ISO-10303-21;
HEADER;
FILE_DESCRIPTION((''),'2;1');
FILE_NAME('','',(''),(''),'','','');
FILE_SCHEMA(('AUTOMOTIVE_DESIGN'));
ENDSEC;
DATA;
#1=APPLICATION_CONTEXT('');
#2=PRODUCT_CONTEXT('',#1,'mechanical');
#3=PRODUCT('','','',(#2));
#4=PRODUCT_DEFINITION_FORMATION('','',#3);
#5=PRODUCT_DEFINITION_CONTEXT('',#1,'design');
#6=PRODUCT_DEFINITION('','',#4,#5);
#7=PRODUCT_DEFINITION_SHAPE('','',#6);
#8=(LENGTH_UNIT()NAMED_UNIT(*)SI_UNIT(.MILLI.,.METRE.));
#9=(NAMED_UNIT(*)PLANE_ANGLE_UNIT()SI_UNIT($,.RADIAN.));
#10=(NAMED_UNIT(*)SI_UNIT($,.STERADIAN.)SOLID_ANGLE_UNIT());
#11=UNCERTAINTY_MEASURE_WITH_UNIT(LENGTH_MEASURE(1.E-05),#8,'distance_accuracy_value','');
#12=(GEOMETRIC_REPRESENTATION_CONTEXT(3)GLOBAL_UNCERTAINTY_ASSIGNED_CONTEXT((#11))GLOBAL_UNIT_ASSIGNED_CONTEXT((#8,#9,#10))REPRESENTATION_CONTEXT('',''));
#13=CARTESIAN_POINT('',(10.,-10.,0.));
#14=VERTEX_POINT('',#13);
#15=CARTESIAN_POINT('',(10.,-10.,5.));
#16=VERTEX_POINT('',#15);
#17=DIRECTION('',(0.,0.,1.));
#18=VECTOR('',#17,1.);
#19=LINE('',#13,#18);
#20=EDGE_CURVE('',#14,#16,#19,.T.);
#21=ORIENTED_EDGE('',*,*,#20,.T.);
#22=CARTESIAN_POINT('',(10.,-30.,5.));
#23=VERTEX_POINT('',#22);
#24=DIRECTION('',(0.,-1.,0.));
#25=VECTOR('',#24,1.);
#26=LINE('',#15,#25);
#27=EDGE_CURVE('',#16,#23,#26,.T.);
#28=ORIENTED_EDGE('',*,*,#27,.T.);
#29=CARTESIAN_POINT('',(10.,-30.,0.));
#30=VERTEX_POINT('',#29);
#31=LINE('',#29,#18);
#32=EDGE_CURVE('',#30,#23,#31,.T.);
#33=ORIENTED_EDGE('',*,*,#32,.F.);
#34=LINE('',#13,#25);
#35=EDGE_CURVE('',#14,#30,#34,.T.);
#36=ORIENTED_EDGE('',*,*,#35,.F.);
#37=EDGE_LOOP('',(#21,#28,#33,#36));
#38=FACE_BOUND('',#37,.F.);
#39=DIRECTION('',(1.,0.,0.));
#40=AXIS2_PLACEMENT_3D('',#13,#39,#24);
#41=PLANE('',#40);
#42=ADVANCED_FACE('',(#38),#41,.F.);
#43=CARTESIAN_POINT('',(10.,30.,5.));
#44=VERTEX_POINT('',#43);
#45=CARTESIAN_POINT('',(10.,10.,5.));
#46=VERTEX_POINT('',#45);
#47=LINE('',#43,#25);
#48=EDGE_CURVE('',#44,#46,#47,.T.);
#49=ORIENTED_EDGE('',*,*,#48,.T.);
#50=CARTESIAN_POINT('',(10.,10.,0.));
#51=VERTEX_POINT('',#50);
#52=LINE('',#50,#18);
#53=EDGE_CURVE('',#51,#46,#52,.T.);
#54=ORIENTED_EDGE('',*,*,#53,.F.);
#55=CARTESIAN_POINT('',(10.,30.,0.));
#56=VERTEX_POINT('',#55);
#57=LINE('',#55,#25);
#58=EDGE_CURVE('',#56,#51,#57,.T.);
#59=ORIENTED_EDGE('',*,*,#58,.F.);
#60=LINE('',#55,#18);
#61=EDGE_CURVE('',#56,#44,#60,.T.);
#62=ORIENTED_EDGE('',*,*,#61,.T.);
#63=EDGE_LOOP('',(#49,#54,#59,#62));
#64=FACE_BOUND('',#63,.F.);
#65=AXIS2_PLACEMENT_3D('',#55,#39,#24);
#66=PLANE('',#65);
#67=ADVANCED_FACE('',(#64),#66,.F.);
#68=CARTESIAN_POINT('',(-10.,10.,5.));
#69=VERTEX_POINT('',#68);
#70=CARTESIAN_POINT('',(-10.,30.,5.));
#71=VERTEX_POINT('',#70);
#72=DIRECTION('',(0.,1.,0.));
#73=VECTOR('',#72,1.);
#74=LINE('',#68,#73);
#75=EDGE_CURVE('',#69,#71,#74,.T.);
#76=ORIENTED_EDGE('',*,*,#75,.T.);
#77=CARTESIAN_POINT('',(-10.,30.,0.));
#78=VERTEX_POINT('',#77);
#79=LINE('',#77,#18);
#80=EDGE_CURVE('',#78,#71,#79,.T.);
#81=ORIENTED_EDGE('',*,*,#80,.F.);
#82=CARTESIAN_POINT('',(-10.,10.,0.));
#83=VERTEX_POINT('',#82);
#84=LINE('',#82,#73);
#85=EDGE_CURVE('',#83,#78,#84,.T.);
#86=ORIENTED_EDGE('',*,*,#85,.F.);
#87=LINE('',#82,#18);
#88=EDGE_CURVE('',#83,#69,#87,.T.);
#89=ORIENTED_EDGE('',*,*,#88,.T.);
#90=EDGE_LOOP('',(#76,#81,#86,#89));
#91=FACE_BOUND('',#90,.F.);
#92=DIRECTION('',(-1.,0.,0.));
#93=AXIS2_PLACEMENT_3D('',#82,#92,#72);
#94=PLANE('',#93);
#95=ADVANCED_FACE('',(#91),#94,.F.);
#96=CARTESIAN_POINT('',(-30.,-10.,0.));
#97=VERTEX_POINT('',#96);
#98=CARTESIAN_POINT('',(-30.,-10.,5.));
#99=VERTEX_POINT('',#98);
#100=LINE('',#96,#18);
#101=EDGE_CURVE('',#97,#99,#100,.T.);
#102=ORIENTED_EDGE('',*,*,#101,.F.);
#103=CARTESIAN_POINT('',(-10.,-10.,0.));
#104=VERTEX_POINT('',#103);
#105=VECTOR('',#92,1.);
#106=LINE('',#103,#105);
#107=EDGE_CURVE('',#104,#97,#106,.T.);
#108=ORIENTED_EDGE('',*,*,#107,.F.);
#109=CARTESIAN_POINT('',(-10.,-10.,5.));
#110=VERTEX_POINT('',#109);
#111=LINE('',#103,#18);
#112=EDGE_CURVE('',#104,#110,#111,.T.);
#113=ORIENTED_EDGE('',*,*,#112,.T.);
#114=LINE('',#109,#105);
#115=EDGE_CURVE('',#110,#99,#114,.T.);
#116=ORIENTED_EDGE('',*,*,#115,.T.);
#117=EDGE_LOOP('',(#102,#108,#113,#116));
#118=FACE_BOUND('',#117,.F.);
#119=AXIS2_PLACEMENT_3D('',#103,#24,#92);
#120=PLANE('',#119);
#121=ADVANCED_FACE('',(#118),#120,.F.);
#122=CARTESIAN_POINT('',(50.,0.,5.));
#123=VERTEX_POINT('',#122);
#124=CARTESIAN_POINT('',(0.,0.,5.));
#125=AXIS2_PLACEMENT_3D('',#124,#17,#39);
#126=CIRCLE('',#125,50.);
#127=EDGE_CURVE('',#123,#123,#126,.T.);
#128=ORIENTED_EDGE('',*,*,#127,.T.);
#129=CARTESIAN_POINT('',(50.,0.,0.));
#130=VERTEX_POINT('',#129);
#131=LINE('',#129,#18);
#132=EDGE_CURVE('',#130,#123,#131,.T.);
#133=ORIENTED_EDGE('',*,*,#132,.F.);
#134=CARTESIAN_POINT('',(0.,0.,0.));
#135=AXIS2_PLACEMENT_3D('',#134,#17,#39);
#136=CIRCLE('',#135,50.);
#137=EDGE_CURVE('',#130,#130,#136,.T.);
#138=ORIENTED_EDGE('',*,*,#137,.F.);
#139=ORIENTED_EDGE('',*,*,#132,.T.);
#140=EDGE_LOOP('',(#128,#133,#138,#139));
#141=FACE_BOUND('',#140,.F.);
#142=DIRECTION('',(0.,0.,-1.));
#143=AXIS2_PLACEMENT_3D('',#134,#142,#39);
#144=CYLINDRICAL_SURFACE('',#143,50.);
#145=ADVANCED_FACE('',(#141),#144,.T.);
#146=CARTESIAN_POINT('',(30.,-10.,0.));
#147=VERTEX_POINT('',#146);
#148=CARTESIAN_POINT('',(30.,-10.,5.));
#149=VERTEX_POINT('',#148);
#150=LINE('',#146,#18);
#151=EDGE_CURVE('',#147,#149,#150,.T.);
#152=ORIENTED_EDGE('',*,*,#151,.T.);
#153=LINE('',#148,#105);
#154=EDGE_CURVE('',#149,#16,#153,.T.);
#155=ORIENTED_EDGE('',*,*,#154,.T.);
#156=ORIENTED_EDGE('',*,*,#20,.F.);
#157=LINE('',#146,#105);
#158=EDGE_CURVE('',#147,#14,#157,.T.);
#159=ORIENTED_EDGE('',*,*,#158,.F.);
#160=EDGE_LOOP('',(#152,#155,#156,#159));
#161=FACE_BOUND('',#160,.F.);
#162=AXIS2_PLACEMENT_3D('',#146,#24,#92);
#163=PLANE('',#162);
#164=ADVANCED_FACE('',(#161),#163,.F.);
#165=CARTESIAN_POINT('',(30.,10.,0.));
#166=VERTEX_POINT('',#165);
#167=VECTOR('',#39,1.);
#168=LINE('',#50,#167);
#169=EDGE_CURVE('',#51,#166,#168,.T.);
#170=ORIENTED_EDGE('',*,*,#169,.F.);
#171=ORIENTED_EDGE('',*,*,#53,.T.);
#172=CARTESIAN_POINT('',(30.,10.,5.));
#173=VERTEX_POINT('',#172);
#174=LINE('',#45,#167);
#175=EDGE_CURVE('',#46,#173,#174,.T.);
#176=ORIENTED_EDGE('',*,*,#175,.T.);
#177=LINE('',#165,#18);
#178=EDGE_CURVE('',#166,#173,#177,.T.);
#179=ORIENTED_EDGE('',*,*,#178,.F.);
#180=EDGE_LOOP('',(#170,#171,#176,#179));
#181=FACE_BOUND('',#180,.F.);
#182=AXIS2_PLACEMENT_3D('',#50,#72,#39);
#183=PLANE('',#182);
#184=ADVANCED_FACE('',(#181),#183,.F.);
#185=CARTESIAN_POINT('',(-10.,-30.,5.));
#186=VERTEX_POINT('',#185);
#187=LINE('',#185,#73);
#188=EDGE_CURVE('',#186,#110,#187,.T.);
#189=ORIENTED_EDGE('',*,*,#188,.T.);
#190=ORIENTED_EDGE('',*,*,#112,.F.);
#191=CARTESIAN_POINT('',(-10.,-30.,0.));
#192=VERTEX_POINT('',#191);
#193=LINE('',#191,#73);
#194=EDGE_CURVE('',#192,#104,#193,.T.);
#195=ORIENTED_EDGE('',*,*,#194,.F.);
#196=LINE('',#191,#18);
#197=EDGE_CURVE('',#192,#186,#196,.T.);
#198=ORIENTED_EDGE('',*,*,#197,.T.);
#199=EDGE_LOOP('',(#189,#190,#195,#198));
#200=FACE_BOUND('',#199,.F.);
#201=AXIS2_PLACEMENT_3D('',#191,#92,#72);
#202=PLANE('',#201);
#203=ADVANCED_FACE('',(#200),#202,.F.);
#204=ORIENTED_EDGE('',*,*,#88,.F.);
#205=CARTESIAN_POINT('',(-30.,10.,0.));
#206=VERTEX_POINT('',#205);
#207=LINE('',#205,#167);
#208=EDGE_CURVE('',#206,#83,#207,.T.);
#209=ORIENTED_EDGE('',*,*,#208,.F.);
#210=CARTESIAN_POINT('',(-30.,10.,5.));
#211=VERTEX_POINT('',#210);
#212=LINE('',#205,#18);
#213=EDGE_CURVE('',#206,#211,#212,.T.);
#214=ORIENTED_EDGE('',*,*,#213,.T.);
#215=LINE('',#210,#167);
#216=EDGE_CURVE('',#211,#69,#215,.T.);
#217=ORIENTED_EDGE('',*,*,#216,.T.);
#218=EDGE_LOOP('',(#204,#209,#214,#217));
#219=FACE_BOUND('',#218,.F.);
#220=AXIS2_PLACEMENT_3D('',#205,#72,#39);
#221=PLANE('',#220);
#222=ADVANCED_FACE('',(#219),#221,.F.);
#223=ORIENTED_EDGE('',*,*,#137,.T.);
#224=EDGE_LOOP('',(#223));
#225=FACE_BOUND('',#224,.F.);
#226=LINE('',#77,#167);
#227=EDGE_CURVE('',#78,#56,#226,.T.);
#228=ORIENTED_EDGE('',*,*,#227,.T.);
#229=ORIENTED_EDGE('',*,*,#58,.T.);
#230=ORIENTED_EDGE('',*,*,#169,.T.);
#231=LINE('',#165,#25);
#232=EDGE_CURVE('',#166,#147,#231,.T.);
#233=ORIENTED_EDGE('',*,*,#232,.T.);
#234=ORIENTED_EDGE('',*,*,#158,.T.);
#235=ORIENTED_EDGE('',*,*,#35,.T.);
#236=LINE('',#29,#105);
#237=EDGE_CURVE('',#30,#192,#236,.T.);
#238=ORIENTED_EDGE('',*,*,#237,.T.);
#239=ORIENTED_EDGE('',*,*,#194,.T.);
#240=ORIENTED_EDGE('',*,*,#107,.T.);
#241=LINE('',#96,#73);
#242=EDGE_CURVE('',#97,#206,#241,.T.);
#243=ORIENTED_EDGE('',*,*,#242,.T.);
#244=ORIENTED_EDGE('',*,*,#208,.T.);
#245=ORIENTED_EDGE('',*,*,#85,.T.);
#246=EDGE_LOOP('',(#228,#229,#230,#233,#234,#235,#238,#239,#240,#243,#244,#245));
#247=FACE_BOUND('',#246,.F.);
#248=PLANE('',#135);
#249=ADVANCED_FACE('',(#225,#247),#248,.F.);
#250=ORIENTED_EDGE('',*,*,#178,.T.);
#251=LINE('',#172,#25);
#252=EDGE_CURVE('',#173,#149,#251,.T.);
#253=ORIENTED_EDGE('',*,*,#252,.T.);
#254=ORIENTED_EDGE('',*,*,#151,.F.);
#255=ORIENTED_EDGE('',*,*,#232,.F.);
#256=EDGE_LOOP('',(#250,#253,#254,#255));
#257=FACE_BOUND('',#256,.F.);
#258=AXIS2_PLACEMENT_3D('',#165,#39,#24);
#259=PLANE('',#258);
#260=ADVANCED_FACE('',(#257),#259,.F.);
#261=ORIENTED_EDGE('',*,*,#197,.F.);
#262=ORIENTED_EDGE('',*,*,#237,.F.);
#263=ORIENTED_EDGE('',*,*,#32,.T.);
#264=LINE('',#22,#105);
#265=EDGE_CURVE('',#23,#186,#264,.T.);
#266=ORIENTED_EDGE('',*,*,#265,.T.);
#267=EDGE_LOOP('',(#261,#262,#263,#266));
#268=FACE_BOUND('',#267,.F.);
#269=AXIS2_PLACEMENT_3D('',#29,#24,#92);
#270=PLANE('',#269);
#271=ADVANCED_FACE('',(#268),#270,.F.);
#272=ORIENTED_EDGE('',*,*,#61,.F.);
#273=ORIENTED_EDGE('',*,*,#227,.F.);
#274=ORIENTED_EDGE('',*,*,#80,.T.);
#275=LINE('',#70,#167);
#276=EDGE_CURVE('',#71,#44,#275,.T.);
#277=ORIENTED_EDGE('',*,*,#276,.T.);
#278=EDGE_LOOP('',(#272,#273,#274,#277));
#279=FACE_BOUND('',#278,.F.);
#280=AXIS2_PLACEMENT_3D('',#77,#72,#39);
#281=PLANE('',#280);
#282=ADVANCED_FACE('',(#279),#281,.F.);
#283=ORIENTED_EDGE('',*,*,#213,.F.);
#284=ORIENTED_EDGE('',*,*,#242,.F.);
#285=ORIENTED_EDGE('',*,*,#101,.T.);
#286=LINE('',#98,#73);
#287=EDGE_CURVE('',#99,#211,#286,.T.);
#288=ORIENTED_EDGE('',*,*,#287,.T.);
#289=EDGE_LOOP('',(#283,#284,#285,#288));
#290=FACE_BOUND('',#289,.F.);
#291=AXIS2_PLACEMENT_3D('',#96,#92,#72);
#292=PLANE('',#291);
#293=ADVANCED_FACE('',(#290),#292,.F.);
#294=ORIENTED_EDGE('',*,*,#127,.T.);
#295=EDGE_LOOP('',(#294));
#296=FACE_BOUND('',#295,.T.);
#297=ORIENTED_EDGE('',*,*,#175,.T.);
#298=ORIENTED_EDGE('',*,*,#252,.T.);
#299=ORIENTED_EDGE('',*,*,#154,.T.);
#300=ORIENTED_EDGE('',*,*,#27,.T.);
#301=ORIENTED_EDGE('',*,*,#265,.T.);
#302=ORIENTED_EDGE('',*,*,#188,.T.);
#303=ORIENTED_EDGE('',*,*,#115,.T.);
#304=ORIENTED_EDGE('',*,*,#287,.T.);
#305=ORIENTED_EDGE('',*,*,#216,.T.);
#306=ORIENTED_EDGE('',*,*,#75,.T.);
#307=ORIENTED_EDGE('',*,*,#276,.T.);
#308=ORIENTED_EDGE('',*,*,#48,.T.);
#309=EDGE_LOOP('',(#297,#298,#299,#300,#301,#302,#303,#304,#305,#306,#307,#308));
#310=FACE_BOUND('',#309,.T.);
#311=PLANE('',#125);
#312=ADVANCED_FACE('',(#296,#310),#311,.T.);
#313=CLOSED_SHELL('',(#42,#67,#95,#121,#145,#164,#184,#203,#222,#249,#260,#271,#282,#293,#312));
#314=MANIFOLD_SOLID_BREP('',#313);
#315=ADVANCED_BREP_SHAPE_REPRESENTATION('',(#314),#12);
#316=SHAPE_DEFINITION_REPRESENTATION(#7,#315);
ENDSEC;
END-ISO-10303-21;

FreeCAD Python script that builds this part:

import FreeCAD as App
import Part
import Sketcher
Q = App.Units.Quantity

doc = App.newDocument("Part")
body = doc.addObject("PartDesign::Body", "Body")

sketch1 = body.newObject("Sketcher::SketchObject", "Sketch")
sketch1.AttachmentSupport = (doc.getObject("XY_Plane"), [""])
sketch1.MapMode = "FlatFace"
sketch1.addGeometry(Part.Circle(App.Vector(0, 0, 0), App.Vector(0, 0, 1), 50), False)
sketch1.addGeometry(Part.LineSegment(App.Vector(-10, 10, 0), App.Vector(-10, 30, 0)), False)
sketch1.addGeometry(Part.LineSegment(App.Vector(-10, 30, 0), App.Vector(10, 30, 0)), False)
sketch1.addGeometry(Part.LineSegment(App.Vector(10, 30, 0), App.Vector(10, 10, 0)), False)
sketch1.addGeometry(Part.LineSegment(App.Vector(10, 10, 0), App.Vector(30, 10, 0)), False)
sketch1.addGeometry(Part.LineSegment(App.Vector(30, 10, 0), App.Vector(30, -10, 0)), False)
sketch1.addGeometry(Part.LineSegment(App.Vector(30, -10, 0), App.Vector(10, -10, 0)), False)
sketch1.addGeometry(Part.LineSegment(App.Vector(10, -10, 0), App.Vector(10, -30, 0)), False)
sketch1.addGeometry(Part.LineSegment(App.Vector(10, -30, 0), App.Vector(-10, -30, 0)), False)
sketch1.addGeometry(Part.LineSegment(App.Vector(-10, -30, 0), App.Vector(-10, -10, 0)), False)
sketch1.addGeometry(Part.LineSegment(App.Vector(-10, -10, 0), App.Vector(-30, -10, 0)), False)
sketch1.addGeometry(Part.LineSegment(App.Vector(-30, -10, 0), App.Vector(-30, 10, 0)), False)
sketch1.addGeometry(Part.LineSegment(App.Vector(-30, 10, 0), App.Vector(-10, 10, 0)), False)
sketch1.addConstraint(Sketcher.Constraint("Coincident", 1, 2, 2, 1))
sketch1.addConstraint(Sketcher.Constraint("Coincident", 2, 2, 3, 1))
sketch1.addConstraint(Sketcher.Constraint("Coincident", 3, 2, 4, 1))
sketch1.addConstraint(Sketcher.Constraint("Coincident", 4, 2, 5, 1))
sketch1.addConstraint(Sketcher.Constraint("Coincident", 5, 2, 6, 1))
sketch1.addConstraint(Sketcher.Constraint("Coincident", 6, 2, 7, 1))
sketch1.addConstraint(Sketcher.Constraint("Coincident", 7, 2, 8, 1))
sketch1.addConstraint(Sketcher.Constraint("Coincident", 8, 2, 9, 1))
sketch1.addConstraint(Sketcher.Constraint("Coincident", 9, 2, 10, 1))
sketch1.addConstraint(Sketcher.Constraint("Coincident", 10, 2, 11, 1))
sketch1.addConstraint(Sketcher.Constraint("Coincident", 11, 2, 12, 1))
sketch1.addConstraint(Sketcher.Constraint("Coincident", 12, 2, 1, 1))
sketch1.addConstraint(Sketcher.Constraint("Vertical", 1))
sketch1.addConstraint(Sketcher.Constraint("Horizontal", 2))
sketch1.addConstraint(Sketcher.Constraint("Vertical", 3))
sketch1.addConstraint(Sketcher.Constraint("Horizontal", 4))
sketch1.addConstraint(Sketcher.Constraint("Vertical", 5))
sketch1.addConstraint(Sketcher.Constraint("Horizontal", 6))
sketch1.addConstraint(Sketcher.Constraint("Vertical", 7))
sketch1.addConstraint(Sketcher.Constraint("Horizontal", 8))
sketch1.addConstraint(Sketcher.Constraint("Vertical", 9))
sketch1.addConstraint(Sketcher.Constraint("Horizontal", 10))
sketch1.addConstraint(Sketcher.Constraint("Vertical", 11))
sketch1.addConstraint(Sketcher.Constraint("Horizontal", 12))
sketch1.addConstraint(Sketcher.Constraint("Coincident", 0, 3, -1, 1))
sketch1.addConstraint(Sketcher.Constraint("Symmetric", 1, 2, 7, 2, -1, 1))
sketch1.addConstraint(Sketcher.Constraint("Symmetric", 3, 2, 9, 2, -1, 1))
sketch1.addConstraint(Sketcher.Constraint("Symmetric", 5, 2, 11, 2, -1, 1))
sketch1.addConstraint(Sketcher.Constraint("Symmetric", 6, 2, 9, 2, -2))
sketch1.addConstraint(Sketcher.Constraint("Equal", 2, 4))
sketch1.addConstraint(Sketcher.Constraint("Equal", 12, 1))
sketch1.addConstraint(Sketcher.Constraint("Equal", 3, 5))
sketch1.addConstraint(Sketcher.Constraint("Diameter", 0, Q("100 mm")))
sketch1.addConstraint(Sketcher.Constraint("DistanceX", 2, 1, 2, 2, Q("20 mm")))
pad1 = body.newObject("PartDesign::Pad", "Pad")
pad1.Profile = sketch1
pad1.Length = 5

doc.recompute()
